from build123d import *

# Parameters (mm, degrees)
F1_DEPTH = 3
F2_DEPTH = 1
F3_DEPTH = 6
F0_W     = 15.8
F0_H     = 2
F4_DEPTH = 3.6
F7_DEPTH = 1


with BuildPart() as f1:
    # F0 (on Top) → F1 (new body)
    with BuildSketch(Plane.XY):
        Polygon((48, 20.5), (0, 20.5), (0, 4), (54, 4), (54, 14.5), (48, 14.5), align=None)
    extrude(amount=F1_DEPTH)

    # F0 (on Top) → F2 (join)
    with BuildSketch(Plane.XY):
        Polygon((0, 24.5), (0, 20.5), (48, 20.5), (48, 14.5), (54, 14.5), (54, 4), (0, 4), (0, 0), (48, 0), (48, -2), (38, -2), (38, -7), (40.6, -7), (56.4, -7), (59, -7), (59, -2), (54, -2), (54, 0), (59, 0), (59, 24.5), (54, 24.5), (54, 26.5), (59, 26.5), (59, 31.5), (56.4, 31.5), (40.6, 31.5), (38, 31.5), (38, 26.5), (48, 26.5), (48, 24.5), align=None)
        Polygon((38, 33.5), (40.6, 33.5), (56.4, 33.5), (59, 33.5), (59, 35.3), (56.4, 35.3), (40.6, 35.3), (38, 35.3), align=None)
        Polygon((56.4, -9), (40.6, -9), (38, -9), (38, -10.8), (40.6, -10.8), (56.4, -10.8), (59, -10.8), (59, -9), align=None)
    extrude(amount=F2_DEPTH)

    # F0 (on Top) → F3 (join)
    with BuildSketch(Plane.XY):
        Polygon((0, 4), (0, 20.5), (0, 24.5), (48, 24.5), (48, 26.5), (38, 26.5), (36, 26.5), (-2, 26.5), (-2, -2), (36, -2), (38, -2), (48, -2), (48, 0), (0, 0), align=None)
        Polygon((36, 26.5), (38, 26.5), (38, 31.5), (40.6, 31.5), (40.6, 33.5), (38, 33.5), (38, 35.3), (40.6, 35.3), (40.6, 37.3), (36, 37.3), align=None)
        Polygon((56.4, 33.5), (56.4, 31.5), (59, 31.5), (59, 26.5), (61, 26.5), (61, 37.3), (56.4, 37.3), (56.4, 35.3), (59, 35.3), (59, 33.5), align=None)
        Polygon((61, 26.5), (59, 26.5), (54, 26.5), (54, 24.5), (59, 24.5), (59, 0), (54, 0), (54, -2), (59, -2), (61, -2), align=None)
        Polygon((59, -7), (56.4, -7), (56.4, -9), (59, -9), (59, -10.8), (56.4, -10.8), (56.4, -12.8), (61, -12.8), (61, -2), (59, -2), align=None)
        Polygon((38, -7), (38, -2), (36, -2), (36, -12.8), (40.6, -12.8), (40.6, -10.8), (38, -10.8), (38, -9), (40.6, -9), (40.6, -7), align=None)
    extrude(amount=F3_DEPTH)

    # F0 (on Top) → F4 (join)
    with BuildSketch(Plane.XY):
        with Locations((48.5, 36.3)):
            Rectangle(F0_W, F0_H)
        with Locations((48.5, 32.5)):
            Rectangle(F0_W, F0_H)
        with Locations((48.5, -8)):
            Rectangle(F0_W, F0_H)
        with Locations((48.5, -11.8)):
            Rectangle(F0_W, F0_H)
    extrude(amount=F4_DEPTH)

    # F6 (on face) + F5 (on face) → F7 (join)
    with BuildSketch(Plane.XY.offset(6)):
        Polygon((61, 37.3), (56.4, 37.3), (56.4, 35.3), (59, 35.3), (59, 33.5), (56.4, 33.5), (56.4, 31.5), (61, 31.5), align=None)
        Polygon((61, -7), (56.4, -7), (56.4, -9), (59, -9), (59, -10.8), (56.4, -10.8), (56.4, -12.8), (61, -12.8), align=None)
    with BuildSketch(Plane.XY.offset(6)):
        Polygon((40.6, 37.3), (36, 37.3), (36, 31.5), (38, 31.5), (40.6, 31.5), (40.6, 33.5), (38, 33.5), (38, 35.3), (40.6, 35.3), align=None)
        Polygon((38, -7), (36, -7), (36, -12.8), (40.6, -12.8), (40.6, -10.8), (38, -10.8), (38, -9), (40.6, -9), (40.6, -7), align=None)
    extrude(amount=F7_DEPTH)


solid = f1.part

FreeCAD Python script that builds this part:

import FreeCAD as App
import Part
import Sketcher

V = App.Vector
Q = App.Units.Quantity


def add_polygon(sketch, points):
    """Adds a closed chain of lines whose ends are joined by coincident constraints."""
    first, n = sketch.GeometryCount, len(points)
    for a, b in zip(points, points[1:] + points[:1]):
        sketch.addGeometry(Part.LineSegment(App.Vector(*a, 0), App.Vector(*b, 0)), False)
    for i in range(n):
        sketch.addConstraint(Sketcher.Constraint("Coincident", first + i, 2, first + (i + 1) % n, 1))

doc = App.newDocument("Part")
body = doc.addObject("PartDesign::Body", "Body")
body.AllowCompound = True

# Sketch on XY plane
sketch1 = doc.addObject("Sketcher::SketchObject", "Sketch")
body.addObject(sketch1)
sketch1.AttachmentSupport = (doc.XY_Plane, [""])
sketch1.MapMode = "FlatFace"
add_polygon(sketch1, [(48, 20), (0, 20), (0, 4), (54, 4), (54, 14), (48, 14)])  # lines 0-5
sketch1.addConstraint([
    Sketcher.Constraint("Horizontal", 0),
    Sketcher.Constraint("Vertical", 1),
    Sketcher.Constraint("Horizontal", 2),
    Sketcher.Constraint("Vertical", 3),
    Sketcher.Constraint("Horizontal", 4),
    Sketcher.Constraint("Vertical", 5),
    Sketcher.Constraint("PointOnObject", 0, 2, -2),
    Sketcher.Constraint("Equal", 4, 5),
    Sketcher.Constraint("DistanceX", 0, 2, 0, 1, Q("48 mm")),
    Sketcher.Constraint("DistanceX", 2, 1, 2, 2, Q("54 mm")),
    Sketcher.Constraint("DistanceY", 1, 2, 1, 1, Q("16.5 mm")),
    Sketcher.Constraint("DistanceY", -1, 1, 1, 2, Q("4 mm")),
])
pad1 = doc.addObject("PartDesign::Pad", "Pad")
body.addObject(pad1)
pad1.Profile = sketch1
pad1.Length = 3

# Sketch on XY plane
sketch2 = doc.addObject("Sketcher::SketchObject", "Sketch001")
body.addObject(sketch2)
sketch2.AttachmentSupport = (doc.XY_Plane, [""])
sketch2.MapMode = "FlatFace"
add_polygon(sketch2, [(0, 24.5), (0, 20.5), (48, 20.5), (48, 14.5), (54, 14.5), (54, 4), (0, 4), (0, 0), (48, 0), (48, -2), (38, -2), (38, -7), (59, -7), (59, -2), (54, -2), (54, 0), (59, 0), (59, 24.5), (54, 24.5), (54, 26.5), (59, 26.5), (59, 31.5), (38, 31.5), (38, 26.5), (48, 26.5), (48, 24.5)])  # lines 0-25
add_polygon(sketch2, [(38, 33.5), (59, 33.5), (59, 35.3), (38, 35.3)])  # lines 26-29
add_polygon(sketch2, [(38, -9), (38, -10.8), (59, -10.8), (59, -9)])  # lines 30-33
sketch2.addConstraint([
    Sketcher.Constraint("Vertical", 0),
    Sketcher.Constraint("Horizontal", 1),
    Sketcher.Constraint("Vertical", 2),
    Sketcher.Constraint("Horizontal", 3),
    Sketcher.Constraint("Vertical", 4),
    Sketcher.Constraint("Horizontal", 5),
    Sketcher.Constraint("Vertical", 6),
    Sketcher.Constraint("Horizontal", 7),
    Sketcher.Constraint("Vertical", 8),
    Sketcher.Constraint("Horizontal", 9),
    Sketcher.Constraint("Vertical", 10),
    Sketcher.Constraint("Horizontal", 11),
    Sketcher.Constraint("Vertical", 12),
    Sketcher.Constraint("Horizontal", 13),
    Sketcher.Constraint("Vertical", 14),
    Sketcher.Constraint("Horizontal", 15),
    Sketcher.Constraint("Vertical", 16),
    Sketcher.Constraint("Horizontal", 17),
    Sketcher.Constraint("Vertical", 18),
    Sketcher.Constraint("Horizontal", 19),
    Sketcher.Constraint("Vertical", 20),
    Sketcher.Constraint("Horizontal", 21),
    Sketcher.Constraint("Vertical", 22),
    Sketcher.Constraint("Horizontal", 23),
    Sketcher.Constraint("Vertical", 24),
    Sketcher.Constraint("Horizontal", 25),
    Sketcher.Constraint("Horizontal", 26),
    Sketcher.Constraint("Vertical", 27),
    Sketcher.Constraint("Horizontal", 28),
    Sketcher.Constraint("Vertical", 29),
    Sketcher.Constraint("Vertical", 30),
    Sketcher.Constraint("Horizontal", 31),
    Sketcher.Constraint("Vertical", 32),
    Sketcher.Constraint("Horizontal", 33),
    Sketcher.Constraint("Coincident", 6, 2, -1, 1),
    Sketcher.Constraint("PointOnObject", 0, 2, -2),
    Sketcher.Constraint("PointOnObject", 14, 2, -1),
    Sketcher.Constraint("Horizontal", 9, 2, 12, 2),
    Sketcher.Constraint("Horizontal", 19, 2, 22, 2),
    Sketcher.Constraint("Horizontal", 17, 2, 24, 2),
    Sketcher.Constraint("Vertical", 2, 2, 7, 2),
    Sketcher.Constraint("Vertical", 4, 2, 13, 2),
    Sketcher.Constraint("Vertical", 12, 2, 15, 2),
    Sketcher.Constraint("Vertical", 14, 2, 17, 2),
    Sketcher.Constraint("Vertical", 16, 2, 19, 2),
    Sketcher.Constraint("Vertical", 10, 2, 21, 2),
    Sketcher.Constraint("Vertical", 8, 2, 23, 2),
    Sketcher.Constraint("Vertical", 20, 2, 26, 2),
    Sketcher.Constraint("Vertical", 22, 2, 28, 2),
    Sketcher.Constraint("Vertical", 29, 2, 30, 2),
    Sketcher.Constraint("Vertical", 27, 2, 31, 2),
    Sketcher.Constraint("Equal", 3, 2),
    Sketcher.Constraint("Equal", 0, 6),
    Sketcher.Constraint("Equal", 19, 10),
    Sketcher.Constraint("Equal", 14, 18),
    Sketcher.Constraint("Equal", 12, 20),
    Sketcher.Constraint("Equal", 29, 30),
    Sketcher.Constraint("DistanceX", 1, 1, 1, 2, Q("48 mm")),
    Sketcher.Constraint("DistanceX", 3, 1, 3, 2, Q("6 mm")),
    Sketcher.Constraint("DistanceX", 9, 2, 9, 1, Q("10 mm")),
    Sketcher.Constraint("DistanceX", 11, 1, 11, 2, Q("21 mm")),
    Sketcher.Constraint("DistanceY", 0, 2, 0, 1, Q("4 mm")),
    Sketcher.Constraint("DistanceY", 8, 2, 8, 1, Q("2 mm")),
    Sketcher.Constraint("DistanceY", 4, 2, 4, 1, Q("10.5 mm")),
    Sketcher.Constraint("DistanceY", 27, 1, 27, 2, Q("1.8 mm")),
    Sketcher.Constraint("DistanceY", 32, 2, -1, 1, Q("9 mm")),
    Sketcher.Constraint("DistanceY", 20, 2, 26, 2, Q("2 mm")),
])
pad2 = doc.addObject("PartDesign::Pad", "Pad001")
body.addObject(pad2)
pad2.Profile = sketch2
pad2.Length = 1

# Sketch on XY plane
sketch3 = doc.addObject("Sketcher::SketchObject", "Sketch002")
body.addObject(sketch3)
sketch3.AttachmentSupport = (doc.XY_Plane, [""])
sketch3.MapMode = "FlatFace"
add_polygon(sketch3, [(0, 24.5), (48, 24.5), (48, 26.5), (38, 26.5), (38, 31.5), (40.6, 31.5), (40.6, 33.5), (38, 33.5), (38, 35.3), (40.6, 35.3), (40.6, 37.3), (36, 37.3), (36, 26.5), (-2, 26.5), (-2, -2), (36, -2), (36, -12.8), (40.6, -12.8), (40.6, -10.8), (38, -10.8), (38, -9), (40.6, -9), (40.6, -7), (38, -7), (38, -2), (48, -2), (48, 0), (0, 0)])  # lines 0-27
add_polygon(sketch3, [(56.4, 33.5), (56.4, 31.5), (59, 31.5), (59, 26.5), (54, 26.5), (54, 24.5), (59, 24.5), (59, 0), (54, 0), (54, -2), (59, -2), (59, -7), (56.4, -7), (56.4, -9), (59, -9), (59, -10.8), (56.4, -10.8), (56.4, -12.8), (61, -12.8), (61, 37.3), (56.4, 37.3), (56.4, 35.3), (59, 35.3), (59, 33.5)])  # lines 28-51
sketch3.addConstraint([
    Sketcher.Constraint("Horizontal", 0),
    Sketcher.Constraint("Vertical", 1),
    Sketcher.Constraint("Horizontal", 2),
    Sketcher.Constraint("Vertical", 3),
    Sketcher.Constraint("Horizontal", 4),
    Sketcher.Constraint("Vertical", 5),
    Sketcher.Constraint("Horizontal", 6),
    Sketcher.Constraint("Vertical", 7),
    Sketcher.Constraint("Horizontal", 8),
    Sketcher.Constraint("Vertical", 9),
    Sketcher.Constraint("Horizontal", 10),
    Sketcher.Constraint("Vertical", 11),
    Sketcher.Constraint("Horizontal", 12),
    Sketcher.Constraint("Vertical", 13),
    Sketcher.Constraint("Horizontal", 14),
    Sketcher.Constraint("Vertical", 15),
    Sketcher.Constraint("Horizontal", 16),
    Sketcher.Constraint("Vertical", 17),
    Sketcher.Constraint("Horizontal", 18),
    Sketcher.Constraint("Vertical", 19),
    Sketcher.Constraint("Horizontal", 20),
    Sketcher.Constraint("Vertical", 21),
    Sketcher.Constraint("Horizontal", 22),
    Sketcher.Constraint("Vertical", 23),
    Sketcher.Constraint("Horizontal", 24),
    Sketcher.Constraint("Vertical", 25),
    Sketcher.Constraint("Horizontal", 26),
    Sketcher.Constraint("Vertical", 27),
    Sketcher.Constraint("Vertical", 28),
    Sketcher.Constraint("Horizontal", 29),
    Sketcher.Constraint("Vertical", 30),
    Sketcher.Constraint("Horizontal", 31),
    Sketcher.Constraint("Vertical", 32),
    Sketcher.Constraint("Horizontal", 33),
    Sketcher.Constraint("Vertical", 34),
    Sketcher.Constraint("Horizontal", 35),
    Sketcher.Constraint("Vertical", 36),
    Sketcher.Constraint("Horizontal", 37),
    Sketcher.Constraint("Vertical", 38),
    Sketcher.Constraint("Horizontal", 39),
    Sketcher.Constraint("Vertical", 40),
    Sketcher.Constraint("Horizontal", 41),
    Sketcher.Constraint("Vertical", 42),
    Sketcher.Constraint("Horizontal", 43),
    Sketcher.Constraint("Vertical", 44),
    Sketcher.Constraint("Horizontal", 45),
    Sketcher.Constraint("Vertical", 46),
    Sketcher.Constraint("Horizontal", 47),
    Sketcher.Constraint("Vertical", 48),
    Sketcher.Constraint("Horizontal", 49),
    Sketcher.Constraint("Vertical", 50),
    Sketcher.Constraint("Horizontal", 51),
    Sketcher.Constraint("Coincident", 26, 2, -1, 1),
    Sketcher.Constraint("PointOnObject", 34, 2, -1),
    Sketcher.Constraint("Horizontal", 2, 2, 11, 2),
    Sketcher.Constraint("Horizontal", 14, 2, 23, 2),
    Sketcher.Constraint("Horizontal", 4, 2, 28, 2),
    Sketcher.Constraint("Horizontal", 12, 2, 30, 2),
    Sketcher.Constraint("Horizontal", 27, 2, 32, 2),
    Sketcher.Constraint("Horizontal", 24, 2, 36, 2),
    Sketcher.Constraint("Horizontal", 22, 2, 38, 2),
    Sketcher.Constraint("Horizontal", 20, 2, 40, 2),
    Sketcher.Constraint("Horizontal", 18, 2, 42, 2),
    Sketcher.Constraint("Horizontal", 16, 2, 44, 2),
    Sketcher.Constraint("Horizontal", 10, 2, 46, 2),
    Sketcher.Constraint("Horizontal", 8, 2, 48, 2),
    Sketcher.Constraint("Horizontal", 6, 2, 50, 2),
    Sketcher.Constraint("Vertical", 3, 2, 6, 2),
    Sketcher.Constraint("Vertical", 5, 2, 8, 2),
    Sketcher.Constraint("Vertical", 11, 2, 14, 2),
    Sketcher.Constraint("Vertical", 9, 2, 16, 2),
    Sketcher.Constraint("Vertical", 7, 2, 18, 2),
    Sketcher.Constraint("Vertical", 17, 2, 20, 2),
    Sketcher.Constraint("Vertical", 19, 2, 22, 2),
    Sketcher.Constraint("Vertical", 1, 2, 24, 2),
    Sketcher.Constraint("Vertical", 30, 2, 33, 2),
    Sketcher.Constraint("Vertical", 32, 2, 35, 2),
    Sketcher.Constraint("Vertical", 34, 2, 37, 2),
    Sketcher.Constraint("Vertical", 28, 2, 39, 2),
    Sketcher.Constraint("Vertical", 38, 2, 41, 2),
    Sketcher.Constraint("Vertical", 40, 2, 43, 2),
    Sketcher.Constraint("Vertical", 44, 2, 47, 2),
    Sketcher.Constraint("Vertical", 42, 2, 49, 2),
    Sketcher.Constraint("Equal", 22, 29),
    Sketcher.Constraint("Equal", 16, 45),
    Sketcher.Constraint("Equal", 37, 3),
    Sketcher.Constraint("Equal", 1, 5),
    Sketcher.Constraint("Equal", 5, 9),
    Sketcher.Constraint("Equal", 11, 15),
    Sketcher.Constraint("Equal", 9, 17),
    Sketcher.Constraint("Equal", 7, 19),
    Sketcher.Constraint("Equal", 17, 21),
    Sketcher.Constraint("Equal", 21, 25),
    Sketcher.Constraint("DistanceX", 0, 1, 0, 2, Q("48 mm")),
    Sketcher.Constraint("DistanceX", 2, 2, 2, 1, Q("10 mm")),
    Sketcher.Constraint("DistanceX", 12, 2, 12, 1, Q("38 mm")),
    Sketcher.Constraint("DistanceX", 31, 2, 31, 1, Q("5 mm")),
    Sketcher.Constraint("DistanceY", 1, 1, 1, 2, Q("2 mm")),
    Sketcher.Constraint("DistanceX", 4, 1, 4, 2, Q("2.6 mm")),
    Sketcher.Constraint("DistanceX", 10, 2, 10, 1, Q("4.6 mm")),
    Sketcher.Constraint("DistanceY", 7, 1, 7, 2, Q("1.8 mm")),
    Sketcher.Constraint("DistanceY", 13, 2, 13, 1, Q("28.5 mm")),
    Sketcher.Constraint("DistanceX", -1, 1, 29, 2, Q("59 mm")),
])
pad3 = doc.addObject("PartDesign::Pad", "Pad002")
body.addObject(pad3)
pad3.Profile = sketch3
pad3.Length = 6

# Sketch on XY plane
sketch4 = doc.addObject("Sketcher::SketchObject", "Sketch003")
body.addObject(sketch4)
sketch4.AttachmentSupport = (doc.XY_Plane, [""])
sketch4.MapMode = "FlatFace"
add_polygon(sketch4, [(40.6, 37.3), (40.6, 35.3), (56.4, 35.3), (56.4, 37.3)])  # lines 0-3
add_polygon(sketch4, [(40.6, 33.5), (40.6, 31.5), (56.4, 31.5), (56.4, 33.5)])  # lines 4-7
add_polygon(sketch4, [(40.6, -7), (40.6, -9), (56.4, -9), (56.4, -7)])  # lines 8-11
add_polygon(sketch4, [(40.6, -10.8), (40.6, -12.8), (56.4, -12.8), (56.4, -10.8)])  # lines 12-15
sketch4.addConstraint([
    Sketcher.Constraint("Vertical", 0),
    Sketcher.Constraint("Horizontal", 1),
    Sketcher.Constraint("Vertical", 2),
    Sketcher.Constraint("Horizontal", 3),
    Sketcher.Constraint("Vertical", 4),
    Sketcher.Constraint("Horizontal", 5),
    Sketcher.Constraint("Vertical", 6),
    Sketcher.Constraint("Horizontal", 7),
    Sketcher.Constraint("Vertical", 8),
    Sketcher.Constraint("Horizontal", 9),
    Sketcher.Constraint("Vertical", 10),
    Sketcher.Constraint("Horizontal", 11),
    Sketcher.Constraint("Vertical", 12),
    Sketcher.Constraint("Horizontal", 13),
    Sketcher.Constraint("Vertical", 14),
    Sketcher.Constraint("Horizontal", 15),
    Sketcher.Constraint("Vertical", 3, 2, 4, 2),
    Sketcher.Constraint("Vertical", 2, 2, 5, 2),
    Sketcher.Constraint("Vertical", 7, 2, 8, 2),
    Sketcher.Constraint("Vertical", 6, 2, 9, 2),
    Sketcher.Constraint("Vertical", 11, 2, 12, 2),
    Sketcher.Constraint("Vertical", 10, 2, 13, 2),
    Sketcher.Constraint("Equal", 2, 4),
    Sketcher.Constraint("Equal", 6, 8),
    Sketcher.Constraint("Equal", 10, 12),
    Sketcher.Constraint("DistanceY", 0, 2, 0, 1, Q("2 mm")),
    Sketcher.Constraint("DistanceX", 1, 1, 1, 2, Q("15.8 mm")),
    Sketcher.Constraint("DistanceY", 8, 2, -1, 1, Q("9 mm")),
    Sketcher.Constraint("DistanceX", -1, 1, 0, 2, Q("40.6 mm")),
    Sketcher.Constraint("DistanceY", -1, 1, 0, 2, Q("35.3 mm")),
    Sketcher.Constraint("DistanceY", -1, 1, 4, 2, Q("31.5 mm")),
    Sketcher.Constraint("DistanceY", 12, 2, -1, 1, Q("12.8 mm")),
])
pad4 = doc.addObject("PartDesign::Pad", "Pad003")
body.addObject(pad4)
pad4.Profile = sketch4
pad4.Length = 3.6

# Sketch on XY plane
sketch5 = doc.addObject("Sketcher::SketchObject", "Sketch004")
body.addObject(sketch5)
sketch5.AttachmentSupport = (doc.XY_Plane, [""])
sketch5.MapMode = "FlatFace"
sketch5.AttachmentOffset = App.Placement(V(0, 0, 6), App.Rotation())
add_polygon(sketch5, [(61, 37.3), (56.4, 37.3), (56.4, 35.3), (59, 35.3), (59, 33.5), (56.4, 33.5), (56.4, 31.5), (61, 31.5)])  # lines 0-7
add_polygon(sketch5, [(61, -7), (56.4, -7), (56.4, -9), (59, -9), (59, -10.8), (56.4, -10.8), (56.4, -12.8), (61, -12.8)])  # lines 8-15
add_polygon(sketch5, [(40.6, 37.3), (36, 37.3), (36, 31.5), (40.6, 31.5), (40.6, 33.5), (38, 33.5), (38, 35.3), (40.6, 35.3)])  # lines 16-23
add_polygon(sketch5, [(36, -7), (36, -12.8), (40.6, -12.8), (40.6, -10.8), (38, -10.8), (38, -9), (40.6, -9), (40.6, -7)])  # lines 24-31
sketch5.addConstraint([
    Sketcher.Constraint("Horizontal", 0),
    Sketcher.Constraint("Vertical", 1),
    Sketcher.Constraint("Horizontal", 2),
    Sketcher.Constraint("Vertical", 3),
    Sketcher.Constraint("Horizontal", 4),
    Sketcher.Constraint("Vertical", 5),
    Sketcher.Constraint("Horizontal", 6),
    Sketcher.Constraint("Vertical", 7),
    Sketcher.Constraint("Horizontal", 8),
    Sketcher.Constraint("Vertical", 9),
    Sketcher.Constraint("Horizontal", 10),
    Sketcher.Constraint("Vertical", 11),
    Sketcher.Constraint("Horizontal", 12),
    Sketcher.Constraint("Vertical", 13),
    Sketcher.Constraint("Horizontal", 14),
    Sketcher.Constraint("Vertical", 15),
    Sketcher.Constraint("Horizontal", 16),
    Sketcher.Constraint("Vertical", 17),
    Sketcher.Constraint("Horizontal", 18),
    Sketcher.Constraint("Vertical", 19),
    Sketcher.Constraint("Horizontal", 20),
    Sketcher.Constraint("Vertical", 21),
    Sketcher.Constraint("Horizontal", 22),
    Sketcher.Constraint("Vertical", 23),
    Sketcher.Constraint("Vertical", 24),
    Sketcher.Constraint("Horizontal", 25),
    Sketcher.Constraint("Vertical", 26),
    Sketcher.Constraint("Horizontal", 27),
    Sketcher.Constraint("Vertical", 28),
    Sketcher.Constraint("Horizontal", 29),
    Sketcher.Constraint("Vertical", 30),
    Sketcher.Constraint("Horizontal", 31),
    Sketcher.Constraint("Horizontal", 7, 2, 16, 2),
    Sketcher.Constraint("Horizontal", 6, 2, 17, 2),
    Sketcher.Constraint("Horizontal", 4, 2, 19, 2),
    Sketcher.Constraint("Horizontal", 2, 2, 21, 2),
    Sketcher.Constraint("Horizontal", 14, 2, 24, 2),
    Sketcher.Constraint("Horizontal", 12, 2, 26, 2),
    Sketcher.Constraint("Horizontal", 10, 2, 28, 2),
    Sketcher.Constraint("Horizontal", 15, 2, 30, 2),
    Sketcher.Constraint("Vertical", 1, 2, 4, 2),
    Sketcher.Constraint("Vertical", 5, 2, 8, 2),
    Sketcher.Constraint("Vertical", 3, 2, 10, 2),
    Sketcher.Constraint("Vertical", 9, 2, 12, 2),
    Sketcher.Constraint("Vertical", 7, 2, 14, 2),
    Sketcher.Constraint("Vertical", 19, 2, 22, 2),
    Sketcher.Constraint("Vertical", 17, 2, 24, 2),
    Sketcher.Constraint("Vertical", 23, 2, 25, 2),
    Sketcher.Constraint("Vertical", 21, 2, 27, 2),
    Sketcher.Constraint("Vertical", 26, 2, 29, 2),
    Sketcher.Constraint("Equal", 14, 16),
    Sketcher.Constraint("Equal", 12, 20),
    Sketcher.Constraint("Equal", 1, 5),
    Sketcher.Constraint("Equal", 5, 9),
    Sketcher.Constraint("Equal", 3, 11),
    Sketcher.Constraint("Equal", 9, 13),
    Sketcher.Constraint("DistanceY", 1, 2, 1, 1, Q("2 mm")),
    Sketcher.Constraint("DistanceX", 0, 2, 0, 1, Q("4.6 mm")),
    Sketcher.Constraint("DistanceX", 2, 1, 2, 2, Q("2.6 mm")),
    Sketcher.Constraint("DistanceY", 3, 2, 3, 1, Q("1.8 mm")),
    Sketcher.Constraint("DistanceX", -1, 1, 2, 2, Q("59 mm")),
    Sketcher.Constraint("DistanceY", 8, 2, -1, 1, Q("7 mm")),
    Sketcher.Constraint("DistanceX", -1, 1, 16, 2, Q("36 mm")),
    Sketcher.Constraint("DistanceY", -1, 1, 0, 2, Q("37.3 mm")),
])
pad5 = doc.addObject("PartDesign::Pad", "Pad004")
body.addObject(pad5)
pad5.Profile = sketch5
pad5.Length = 1

doc.recompute()
